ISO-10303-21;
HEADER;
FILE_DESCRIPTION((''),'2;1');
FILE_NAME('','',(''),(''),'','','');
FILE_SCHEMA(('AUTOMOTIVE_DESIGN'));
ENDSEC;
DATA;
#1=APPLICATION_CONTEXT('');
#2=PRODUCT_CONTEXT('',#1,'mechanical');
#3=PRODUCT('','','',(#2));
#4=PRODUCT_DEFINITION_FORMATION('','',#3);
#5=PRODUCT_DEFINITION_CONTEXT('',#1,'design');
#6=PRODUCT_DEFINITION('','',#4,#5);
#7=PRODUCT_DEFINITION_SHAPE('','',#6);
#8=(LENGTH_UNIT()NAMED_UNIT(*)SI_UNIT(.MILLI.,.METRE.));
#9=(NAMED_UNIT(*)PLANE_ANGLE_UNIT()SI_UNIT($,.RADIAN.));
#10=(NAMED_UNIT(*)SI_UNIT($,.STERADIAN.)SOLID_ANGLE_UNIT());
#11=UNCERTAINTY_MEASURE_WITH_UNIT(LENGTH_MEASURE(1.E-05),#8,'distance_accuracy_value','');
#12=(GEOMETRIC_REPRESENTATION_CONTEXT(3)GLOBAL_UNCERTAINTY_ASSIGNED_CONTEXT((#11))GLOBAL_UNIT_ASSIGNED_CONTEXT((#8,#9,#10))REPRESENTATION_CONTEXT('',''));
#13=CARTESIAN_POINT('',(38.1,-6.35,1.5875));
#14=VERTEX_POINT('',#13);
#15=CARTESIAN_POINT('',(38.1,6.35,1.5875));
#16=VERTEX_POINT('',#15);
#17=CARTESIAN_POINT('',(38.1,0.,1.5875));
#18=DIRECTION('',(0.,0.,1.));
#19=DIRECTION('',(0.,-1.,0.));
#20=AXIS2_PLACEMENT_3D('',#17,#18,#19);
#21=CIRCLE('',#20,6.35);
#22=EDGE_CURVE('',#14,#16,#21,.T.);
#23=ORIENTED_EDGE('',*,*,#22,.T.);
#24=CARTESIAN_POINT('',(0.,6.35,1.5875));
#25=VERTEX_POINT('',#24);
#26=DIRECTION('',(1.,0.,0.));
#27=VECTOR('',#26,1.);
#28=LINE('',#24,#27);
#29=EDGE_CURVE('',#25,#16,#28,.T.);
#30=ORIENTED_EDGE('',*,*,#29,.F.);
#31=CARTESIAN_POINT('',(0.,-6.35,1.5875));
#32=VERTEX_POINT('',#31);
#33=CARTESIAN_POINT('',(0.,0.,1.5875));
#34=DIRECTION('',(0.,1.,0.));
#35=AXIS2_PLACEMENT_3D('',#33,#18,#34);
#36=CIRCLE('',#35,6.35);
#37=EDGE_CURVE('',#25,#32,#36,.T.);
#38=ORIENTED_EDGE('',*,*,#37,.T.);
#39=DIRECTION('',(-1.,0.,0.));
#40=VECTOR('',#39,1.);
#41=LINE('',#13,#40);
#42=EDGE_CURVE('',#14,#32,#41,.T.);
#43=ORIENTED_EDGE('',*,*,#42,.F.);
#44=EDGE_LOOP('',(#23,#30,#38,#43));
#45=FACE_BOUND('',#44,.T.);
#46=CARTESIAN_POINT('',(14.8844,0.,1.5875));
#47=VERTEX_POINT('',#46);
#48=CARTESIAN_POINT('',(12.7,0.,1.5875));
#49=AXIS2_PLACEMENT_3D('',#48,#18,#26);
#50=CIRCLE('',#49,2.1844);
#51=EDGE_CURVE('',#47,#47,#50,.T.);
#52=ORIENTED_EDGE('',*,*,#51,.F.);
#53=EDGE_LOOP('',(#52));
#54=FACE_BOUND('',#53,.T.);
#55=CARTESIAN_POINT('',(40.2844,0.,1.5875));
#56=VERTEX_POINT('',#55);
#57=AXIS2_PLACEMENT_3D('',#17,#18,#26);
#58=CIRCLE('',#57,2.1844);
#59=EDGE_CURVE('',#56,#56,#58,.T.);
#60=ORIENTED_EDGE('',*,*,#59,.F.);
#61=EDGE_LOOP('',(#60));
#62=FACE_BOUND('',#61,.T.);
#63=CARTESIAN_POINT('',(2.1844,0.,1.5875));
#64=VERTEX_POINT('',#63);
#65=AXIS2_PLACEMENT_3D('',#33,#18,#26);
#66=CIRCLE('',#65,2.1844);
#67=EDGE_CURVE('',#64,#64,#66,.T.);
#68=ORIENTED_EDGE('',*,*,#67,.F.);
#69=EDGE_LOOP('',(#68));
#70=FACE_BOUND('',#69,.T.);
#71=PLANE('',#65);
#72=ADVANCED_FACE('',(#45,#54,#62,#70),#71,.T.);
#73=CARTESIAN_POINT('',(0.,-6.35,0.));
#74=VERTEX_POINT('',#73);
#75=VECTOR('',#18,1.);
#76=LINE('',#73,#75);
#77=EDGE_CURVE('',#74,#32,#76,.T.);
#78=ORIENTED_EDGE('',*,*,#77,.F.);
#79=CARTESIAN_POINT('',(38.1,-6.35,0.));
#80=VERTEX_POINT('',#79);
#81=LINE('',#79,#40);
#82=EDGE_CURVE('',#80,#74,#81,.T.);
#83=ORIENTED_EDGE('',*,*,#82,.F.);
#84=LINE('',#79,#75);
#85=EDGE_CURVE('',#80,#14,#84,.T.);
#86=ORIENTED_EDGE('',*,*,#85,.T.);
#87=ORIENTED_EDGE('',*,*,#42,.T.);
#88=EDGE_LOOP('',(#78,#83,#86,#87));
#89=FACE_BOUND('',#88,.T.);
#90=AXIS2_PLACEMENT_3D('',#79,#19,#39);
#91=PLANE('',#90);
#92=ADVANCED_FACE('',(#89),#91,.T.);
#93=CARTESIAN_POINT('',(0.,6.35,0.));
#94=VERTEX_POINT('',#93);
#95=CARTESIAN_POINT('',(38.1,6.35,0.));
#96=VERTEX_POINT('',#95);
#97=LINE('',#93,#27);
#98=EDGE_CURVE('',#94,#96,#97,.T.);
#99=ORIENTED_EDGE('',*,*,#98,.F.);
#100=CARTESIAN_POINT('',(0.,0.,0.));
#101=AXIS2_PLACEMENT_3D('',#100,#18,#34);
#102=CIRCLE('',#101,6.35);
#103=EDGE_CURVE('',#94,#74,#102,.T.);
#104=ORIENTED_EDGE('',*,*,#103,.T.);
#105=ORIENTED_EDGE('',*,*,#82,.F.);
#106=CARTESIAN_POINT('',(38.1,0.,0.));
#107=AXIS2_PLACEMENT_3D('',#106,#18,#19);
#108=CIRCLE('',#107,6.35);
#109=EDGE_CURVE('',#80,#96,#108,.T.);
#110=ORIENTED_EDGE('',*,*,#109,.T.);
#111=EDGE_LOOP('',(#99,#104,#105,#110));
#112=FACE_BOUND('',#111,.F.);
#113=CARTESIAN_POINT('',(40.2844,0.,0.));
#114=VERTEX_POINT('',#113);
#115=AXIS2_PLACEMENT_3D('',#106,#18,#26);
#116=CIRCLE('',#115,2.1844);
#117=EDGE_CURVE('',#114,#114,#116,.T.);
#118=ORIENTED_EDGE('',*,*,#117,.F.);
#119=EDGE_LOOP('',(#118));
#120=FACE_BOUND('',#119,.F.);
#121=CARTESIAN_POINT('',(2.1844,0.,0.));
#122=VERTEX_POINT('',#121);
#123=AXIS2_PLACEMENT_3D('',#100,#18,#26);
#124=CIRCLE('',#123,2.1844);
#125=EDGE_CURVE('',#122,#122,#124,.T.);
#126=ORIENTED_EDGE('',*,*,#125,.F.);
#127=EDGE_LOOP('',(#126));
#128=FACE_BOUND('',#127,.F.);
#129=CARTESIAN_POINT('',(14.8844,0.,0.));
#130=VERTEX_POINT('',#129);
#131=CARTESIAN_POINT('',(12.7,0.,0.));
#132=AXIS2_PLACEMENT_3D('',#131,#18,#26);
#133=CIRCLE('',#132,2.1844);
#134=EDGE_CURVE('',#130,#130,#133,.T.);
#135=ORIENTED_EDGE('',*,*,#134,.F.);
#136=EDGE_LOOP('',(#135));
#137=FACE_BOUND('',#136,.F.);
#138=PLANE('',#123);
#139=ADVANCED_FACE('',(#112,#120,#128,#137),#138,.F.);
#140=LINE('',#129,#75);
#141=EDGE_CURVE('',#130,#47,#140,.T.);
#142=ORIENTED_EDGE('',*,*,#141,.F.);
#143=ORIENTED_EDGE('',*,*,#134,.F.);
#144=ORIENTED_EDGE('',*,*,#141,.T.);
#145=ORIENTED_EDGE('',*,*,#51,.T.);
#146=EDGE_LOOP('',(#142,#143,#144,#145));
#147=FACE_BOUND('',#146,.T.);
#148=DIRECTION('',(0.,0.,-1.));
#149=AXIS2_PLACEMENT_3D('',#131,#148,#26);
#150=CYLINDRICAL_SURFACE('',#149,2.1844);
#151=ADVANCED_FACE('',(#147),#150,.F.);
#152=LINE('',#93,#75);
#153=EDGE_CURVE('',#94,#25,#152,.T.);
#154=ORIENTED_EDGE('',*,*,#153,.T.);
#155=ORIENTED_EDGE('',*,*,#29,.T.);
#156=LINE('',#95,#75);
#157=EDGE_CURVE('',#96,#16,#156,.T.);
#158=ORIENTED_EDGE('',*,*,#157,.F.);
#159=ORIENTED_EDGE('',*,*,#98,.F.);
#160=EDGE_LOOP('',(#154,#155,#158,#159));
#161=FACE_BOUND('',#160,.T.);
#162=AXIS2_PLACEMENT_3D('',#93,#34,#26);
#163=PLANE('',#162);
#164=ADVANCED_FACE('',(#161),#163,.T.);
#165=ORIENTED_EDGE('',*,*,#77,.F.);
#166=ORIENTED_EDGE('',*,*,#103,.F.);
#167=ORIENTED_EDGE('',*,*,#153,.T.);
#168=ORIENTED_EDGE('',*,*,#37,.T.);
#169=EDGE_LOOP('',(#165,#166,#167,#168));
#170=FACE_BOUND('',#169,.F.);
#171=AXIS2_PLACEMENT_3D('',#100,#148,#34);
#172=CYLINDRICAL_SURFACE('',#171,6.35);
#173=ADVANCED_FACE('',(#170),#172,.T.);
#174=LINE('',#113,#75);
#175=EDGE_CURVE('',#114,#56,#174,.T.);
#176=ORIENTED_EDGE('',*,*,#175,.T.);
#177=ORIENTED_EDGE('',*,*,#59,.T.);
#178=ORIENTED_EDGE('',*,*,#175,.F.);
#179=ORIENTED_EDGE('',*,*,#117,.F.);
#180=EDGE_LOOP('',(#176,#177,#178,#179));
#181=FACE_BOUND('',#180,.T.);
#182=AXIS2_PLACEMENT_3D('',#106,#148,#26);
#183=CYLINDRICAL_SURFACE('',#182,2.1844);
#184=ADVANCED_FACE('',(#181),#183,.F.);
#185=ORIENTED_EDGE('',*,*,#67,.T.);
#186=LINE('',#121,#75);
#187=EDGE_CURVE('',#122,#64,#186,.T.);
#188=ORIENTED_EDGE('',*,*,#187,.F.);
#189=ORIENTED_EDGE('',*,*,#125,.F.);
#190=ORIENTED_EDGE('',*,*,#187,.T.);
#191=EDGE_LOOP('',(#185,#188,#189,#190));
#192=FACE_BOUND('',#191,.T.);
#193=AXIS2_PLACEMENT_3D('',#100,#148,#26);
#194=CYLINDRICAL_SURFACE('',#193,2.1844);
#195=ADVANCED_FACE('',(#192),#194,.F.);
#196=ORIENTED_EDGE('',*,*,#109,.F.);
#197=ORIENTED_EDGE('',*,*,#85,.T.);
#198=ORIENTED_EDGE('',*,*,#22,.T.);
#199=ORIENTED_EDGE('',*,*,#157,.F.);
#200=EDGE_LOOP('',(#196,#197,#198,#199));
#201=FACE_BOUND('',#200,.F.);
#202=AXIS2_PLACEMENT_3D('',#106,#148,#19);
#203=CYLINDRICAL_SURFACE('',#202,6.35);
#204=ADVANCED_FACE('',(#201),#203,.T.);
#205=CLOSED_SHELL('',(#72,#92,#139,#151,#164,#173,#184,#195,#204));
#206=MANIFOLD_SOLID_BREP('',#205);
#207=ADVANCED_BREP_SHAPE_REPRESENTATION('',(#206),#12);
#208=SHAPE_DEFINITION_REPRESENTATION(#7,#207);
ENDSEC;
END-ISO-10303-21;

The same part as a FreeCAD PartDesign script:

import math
import FreeCAD as App
import Part
import Sketcher

V = App.Vector
Q = App.Units.Quantity

doc = App.newDocument("Part")
body = doc.addObject("PartDesign::Body", "Body")

sketch1 = body.newObject("Sketcher::SketchObject", "Sketch")
sketch1.AttachmentSupport = (doc.getObject("XY_Plane"), [""])
sketch1.MapMode = "FlatFace"
sketch1.addGeometry(Part.LineSegment(V(38.1, 6.35, 0), V(0, 6.35, 0)), False)
sketch1.addGeometry(Part.ArcOfCircle(Part.Circle(V(0, 0, 0), V(0, 0, 1), 6.35), math.radians(90), math.radians(270)), False)
sketch1.addGeometry(Part.LineSegment(V(0, -6.35, 0), V(38.1, -6.35, 0)), False)
sketch1.addGeometry(Part.ArcOfCircle(Part.Circle(V(38.1, 0, 0), V(0, 0, 1), 6.35), math.radians(-90), math.radians(90)), False)
sketch1.addGeometry(Part.Circle(V(0, 0, 0), V(0, 0, 1), 2.1844), False)
sketch1.addGeometry(Part.Circle(V(12.7, 0, 0), V(0, 0, 1), 2.1844), False)
sketch1.addGeometry(Part.Circle(V(38.1, 0, 0), V(0, 0, 1), 2.1844), False)
sketch1.addConstraint(Sketcher.Constraint("Tangent", 0, 2, 1, 1))
sketch1.addConstraint(Sketcher.Constraint("Tangent", 1, 2, 2, 1))
sketch1.addConstraint(Sketcher.Constraint("Tangent", 2, 2, 3, 1))
sketch1.addConstraint(Sketcher.Constraint("Tangent", 3, 2, 0, 1))
sketch1.addConstraint(Sketcher.Constraint("Horizontal", 0))
sketch1.addConstraint(Sketcher.Constraint("Horizontal", 2))
sketch1.addConstraint(Sketcher.Constraint("Coincident", 1, 3, -1, 1))
sketch1.addConstraint(Sketcher.Constraint("Coincident", 4, 3, -1, 1))
sketch1.addConstraint(Sketcher.Constraint("Coincident", 6, 3, 3, 3))
sketch1.addConstraint(Sketcher.Constraint("Equal", 4, 5))
sketch1.addConstraint(Sketcher.Constraint("Equal", 5, 6))
sketch1.addConstraint(Sketcher.Constraint("PointOnObject", 5, 3, -1))
sketch1.addConstraint(Sketcher.Constraint("Diameter", 4, Q("0.172 in")))
sketch1.addConstraint(Sketcher.Constraint("Radius", 1, Q("0.25 in")))
sketch1.addConstraint(Sketcher.Constraint("DistanceX", 0, 2, 0, 1, Q("1.5 in")))
sketch1.addConstraint(Sketcher.Constraint("DistanceX", 5, 3, 3, 3, Q("1 in")))
pad1 = body.newObject("PartDesign::Pad", "Pad")
pad1.Profile = sketch1
pad1.Length = Q("0.0625 in")

doc.recompute()
